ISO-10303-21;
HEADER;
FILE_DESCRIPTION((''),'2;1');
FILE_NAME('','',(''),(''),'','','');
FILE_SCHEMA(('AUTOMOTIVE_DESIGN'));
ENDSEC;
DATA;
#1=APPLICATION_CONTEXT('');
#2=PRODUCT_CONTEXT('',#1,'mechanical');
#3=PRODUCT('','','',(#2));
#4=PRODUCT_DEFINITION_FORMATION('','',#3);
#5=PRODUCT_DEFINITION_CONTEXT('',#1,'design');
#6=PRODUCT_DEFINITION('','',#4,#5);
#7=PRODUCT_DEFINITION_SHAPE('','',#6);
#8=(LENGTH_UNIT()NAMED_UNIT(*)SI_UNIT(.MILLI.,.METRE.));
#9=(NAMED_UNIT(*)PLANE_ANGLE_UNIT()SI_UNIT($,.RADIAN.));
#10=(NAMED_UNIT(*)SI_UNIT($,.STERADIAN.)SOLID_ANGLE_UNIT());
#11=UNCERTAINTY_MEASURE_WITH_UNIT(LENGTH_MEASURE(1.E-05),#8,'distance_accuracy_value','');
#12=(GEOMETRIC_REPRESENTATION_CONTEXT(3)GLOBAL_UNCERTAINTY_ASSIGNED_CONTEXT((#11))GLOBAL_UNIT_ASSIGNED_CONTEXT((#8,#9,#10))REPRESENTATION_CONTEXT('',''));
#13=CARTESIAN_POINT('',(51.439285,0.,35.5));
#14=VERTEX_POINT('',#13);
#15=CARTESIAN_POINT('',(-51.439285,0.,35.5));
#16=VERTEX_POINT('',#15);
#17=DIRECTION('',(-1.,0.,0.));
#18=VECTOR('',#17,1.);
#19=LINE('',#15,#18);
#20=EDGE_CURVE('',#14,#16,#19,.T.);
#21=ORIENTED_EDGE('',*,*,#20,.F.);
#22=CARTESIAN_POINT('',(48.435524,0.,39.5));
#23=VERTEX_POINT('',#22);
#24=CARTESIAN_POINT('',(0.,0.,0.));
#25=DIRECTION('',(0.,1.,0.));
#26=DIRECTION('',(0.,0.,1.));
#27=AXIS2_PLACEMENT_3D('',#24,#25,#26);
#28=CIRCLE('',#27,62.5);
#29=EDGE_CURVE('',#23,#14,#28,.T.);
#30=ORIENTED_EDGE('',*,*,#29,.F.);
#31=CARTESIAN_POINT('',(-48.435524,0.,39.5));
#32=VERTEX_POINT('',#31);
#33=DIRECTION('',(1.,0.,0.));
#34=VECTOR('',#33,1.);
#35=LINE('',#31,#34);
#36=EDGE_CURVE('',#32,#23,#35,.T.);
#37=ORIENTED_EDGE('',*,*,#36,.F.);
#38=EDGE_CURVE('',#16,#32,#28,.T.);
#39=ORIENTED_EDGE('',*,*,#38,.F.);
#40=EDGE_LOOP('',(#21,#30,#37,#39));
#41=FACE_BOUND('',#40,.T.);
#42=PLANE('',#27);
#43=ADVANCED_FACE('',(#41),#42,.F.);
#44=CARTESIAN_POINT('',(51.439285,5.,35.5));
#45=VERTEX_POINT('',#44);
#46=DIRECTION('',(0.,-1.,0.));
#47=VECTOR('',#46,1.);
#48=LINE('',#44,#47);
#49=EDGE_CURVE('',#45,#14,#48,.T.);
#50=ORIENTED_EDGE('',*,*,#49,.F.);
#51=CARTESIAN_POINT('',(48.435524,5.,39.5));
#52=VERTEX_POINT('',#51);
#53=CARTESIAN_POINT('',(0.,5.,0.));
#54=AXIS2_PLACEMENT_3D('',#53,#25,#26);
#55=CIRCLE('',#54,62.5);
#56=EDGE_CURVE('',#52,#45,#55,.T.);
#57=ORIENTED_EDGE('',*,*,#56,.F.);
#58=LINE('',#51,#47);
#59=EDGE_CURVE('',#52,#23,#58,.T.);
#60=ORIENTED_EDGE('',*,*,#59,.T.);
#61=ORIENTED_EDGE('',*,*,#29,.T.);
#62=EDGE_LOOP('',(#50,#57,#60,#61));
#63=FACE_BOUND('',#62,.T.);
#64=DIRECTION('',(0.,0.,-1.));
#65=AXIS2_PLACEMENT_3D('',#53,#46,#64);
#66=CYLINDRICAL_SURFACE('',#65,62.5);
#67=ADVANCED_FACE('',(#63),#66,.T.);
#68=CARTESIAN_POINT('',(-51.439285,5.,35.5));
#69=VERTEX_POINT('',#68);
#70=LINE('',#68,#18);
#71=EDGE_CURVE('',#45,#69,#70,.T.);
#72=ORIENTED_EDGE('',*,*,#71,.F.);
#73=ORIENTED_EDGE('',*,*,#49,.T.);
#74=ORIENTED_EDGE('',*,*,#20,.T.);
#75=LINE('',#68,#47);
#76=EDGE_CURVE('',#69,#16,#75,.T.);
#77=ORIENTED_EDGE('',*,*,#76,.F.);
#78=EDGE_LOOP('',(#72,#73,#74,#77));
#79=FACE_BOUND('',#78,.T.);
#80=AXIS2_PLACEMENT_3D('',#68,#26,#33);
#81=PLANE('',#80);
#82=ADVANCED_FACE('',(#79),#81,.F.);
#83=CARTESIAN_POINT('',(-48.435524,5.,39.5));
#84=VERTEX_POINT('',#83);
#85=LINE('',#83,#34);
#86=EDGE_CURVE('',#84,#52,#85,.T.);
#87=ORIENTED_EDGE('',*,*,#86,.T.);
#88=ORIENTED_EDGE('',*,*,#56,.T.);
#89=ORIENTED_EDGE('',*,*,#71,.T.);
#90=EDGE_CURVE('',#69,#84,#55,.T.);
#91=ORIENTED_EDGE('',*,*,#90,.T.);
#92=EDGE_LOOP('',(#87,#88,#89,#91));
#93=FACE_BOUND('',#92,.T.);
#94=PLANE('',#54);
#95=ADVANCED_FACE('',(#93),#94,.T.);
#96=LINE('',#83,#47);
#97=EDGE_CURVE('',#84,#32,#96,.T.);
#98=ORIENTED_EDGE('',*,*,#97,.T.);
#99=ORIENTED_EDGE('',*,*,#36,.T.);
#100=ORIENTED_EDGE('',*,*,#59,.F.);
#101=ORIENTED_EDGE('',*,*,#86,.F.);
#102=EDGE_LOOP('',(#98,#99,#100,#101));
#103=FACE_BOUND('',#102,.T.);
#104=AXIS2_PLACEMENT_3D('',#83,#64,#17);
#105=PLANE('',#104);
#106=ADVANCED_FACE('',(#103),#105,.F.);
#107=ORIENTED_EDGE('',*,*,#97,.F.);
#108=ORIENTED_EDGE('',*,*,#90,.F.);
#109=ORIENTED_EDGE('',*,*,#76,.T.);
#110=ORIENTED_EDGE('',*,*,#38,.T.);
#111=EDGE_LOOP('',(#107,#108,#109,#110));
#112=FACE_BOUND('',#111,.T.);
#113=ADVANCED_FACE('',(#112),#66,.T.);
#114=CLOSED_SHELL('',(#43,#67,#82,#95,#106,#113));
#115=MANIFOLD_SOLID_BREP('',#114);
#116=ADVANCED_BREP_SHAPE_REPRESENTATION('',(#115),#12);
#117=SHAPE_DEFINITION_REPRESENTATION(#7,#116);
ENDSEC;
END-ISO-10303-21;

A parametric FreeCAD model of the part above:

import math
import FreeCAD as App
import Part
import Sketcher

V = App.Vector
Q = App.Units.Quantity

doc = App.newDocument("Part")
body = doc.addObject("PartDesign::Body", "Body")

# Sketch on XZ plane
sketch1 = body.newObject("Sketcher::SketchObject", "Sketch")
sketch1.AttachmentSupport = (doc.getObject("XZ_Plane"), [""])
sketch1.MapMode = "FlatFace"
sketch1.addGeometry([
    Part.LineSegment(V(-48.435524, 39.5, 0), V(48.435524, 39.5, 0)),
    Part.ArcOfCircle(Part.Circle(V(0, 0, 0), V(0, 0, 1), 62.5), math.radians(34.610877), math.radians(39.197834)),
    Part.LineSegment(V(51.439285, 35.5, 0), V(-51.439285, 35.5, 0)),
    Part.ArcOfCircle(Part.Circle(V(0, 0, 0), V(0, 0, 1), 62.5), math.radians(140.802166), math.radians(145.389123)),
], False)
sketch1.addConstraint([
    Sketcher.Constraint("Coincident", 0, 2, 1, 2),
    Sketcher.Constraint("Coincident", 1, 1, 2, 1),
    Sketcher.Constraint("Coincident", 2, 2, 3, 2),
    Sketcher.Constraint("Coincident", 3, 1, 0, 1),
    Sketcher.Constraint("Horizontal", 0),
    Sketcher.Constraint("Horizontal", 2),
    Sketcher.Constraint("Coincident", 1, 3, -1, 1),
    Sketcher.Constraint("Coincident", 3, 3, -1, 1),
    Sketcher.Constraint("Equal", 1, 3),
    Sketcher.Constraint("Radius", 1, Q("62.5 mm")),
    Sketcher.Constraint("DistanceY", 1, 1, 0, 2, Q("4 mm")),
    Sketcher.Constraint("DistanceY", -1, 1, 0, 2, Q("39.5 mm")),
])
pad1 = body.newObject("PartDesign::Pad", "Pad")
pad1.Profile = sketch1
pad1.Length = 5
pad1.Reversed = True

doc.recompute()
